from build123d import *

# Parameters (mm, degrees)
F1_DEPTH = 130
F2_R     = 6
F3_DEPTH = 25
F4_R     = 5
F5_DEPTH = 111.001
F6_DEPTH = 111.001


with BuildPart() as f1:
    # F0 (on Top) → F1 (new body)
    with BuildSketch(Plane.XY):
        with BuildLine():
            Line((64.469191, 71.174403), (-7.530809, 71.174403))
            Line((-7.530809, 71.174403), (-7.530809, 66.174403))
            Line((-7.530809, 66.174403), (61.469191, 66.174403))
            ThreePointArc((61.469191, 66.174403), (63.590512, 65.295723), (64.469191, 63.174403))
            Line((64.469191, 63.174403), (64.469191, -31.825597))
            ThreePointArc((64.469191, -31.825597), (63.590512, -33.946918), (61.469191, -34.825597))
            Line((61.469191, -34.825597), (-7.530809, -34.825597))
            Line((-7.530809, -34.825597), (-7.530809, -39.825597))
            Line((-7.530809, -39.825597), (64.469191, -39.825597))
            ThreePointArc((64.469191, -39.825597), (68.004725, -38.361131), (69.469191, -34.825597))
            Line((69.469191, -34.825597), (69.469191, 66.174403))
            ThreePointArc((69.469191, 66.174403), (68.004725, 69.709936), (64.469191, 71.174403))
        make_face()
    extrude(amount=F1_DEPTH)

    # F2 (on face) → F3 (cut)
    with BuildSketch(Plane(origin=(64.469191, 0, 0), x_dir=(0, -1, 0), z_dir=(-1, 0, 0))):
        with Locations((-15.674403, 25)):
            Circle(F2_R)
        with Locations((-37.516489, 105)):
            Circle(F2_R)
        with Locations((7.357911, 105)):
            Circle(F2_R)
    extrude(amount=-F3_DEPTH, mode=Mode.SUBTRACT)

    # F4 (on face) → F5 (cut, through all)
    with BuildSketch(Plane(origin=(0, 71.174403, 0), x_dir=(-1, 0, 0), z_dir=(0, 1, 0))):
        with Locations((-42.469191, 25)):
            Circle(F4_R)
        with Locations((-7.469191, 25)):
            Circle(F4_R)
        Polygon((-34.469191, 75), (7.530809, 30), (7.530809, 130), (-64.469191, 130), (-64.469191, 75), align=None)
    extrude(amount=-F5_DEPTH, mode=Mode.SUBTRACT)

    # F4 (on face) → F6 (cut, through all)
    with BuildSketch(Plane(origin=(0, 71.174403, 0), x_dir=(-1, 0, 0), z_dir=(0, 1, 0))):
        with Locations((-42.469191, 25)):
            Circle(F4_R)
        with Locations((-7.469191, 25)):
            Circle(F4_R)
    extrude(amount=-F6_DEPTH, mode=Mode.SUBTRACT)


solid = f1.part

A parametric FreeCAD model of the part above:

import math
import FreeCAD as App
import Part
import Sketcher
from FreeCAD import Vector
Q = App.Units.Quantity

doc = App.newDocument("Part")
body = doc.addObject("PartDesign::Body", "Body")

# Sketch on XY plane
sketch1 = doc.addObject("Sketcher::SketchObject", "Sketch")
body.addObject(sketch1)
sketch1.AttachmentSupport = (doc.XY_Plane, [""])
sketch1.MapMode = "FlatFace"
sketch1.addGeometry([
    Part.LineSegment(Vector(64.5, 71.2, 0), Vector(-7.5, 71.2, 0)),  # 0
    Part.LineSegment(Vector(-7.5, 71.2, 0), Vector(-7.5, 66.2, 0)),  # 1
    Part.LineSegment(Vector(-7.5, 66.2, 0), Vector(61.5, 66.2, 0)),  # 2
    Part.ArcOfCircle(Part.Circle(Vector(61.5, 63.2, 0), Vector(0, 0, 1), 3), math.radians(0), math.radians(90)),  # 3
    Part.LineSegment(Vector(64.5, 63.2, 0), Vector(64.5, -31.8, 0)),  # 4
    Part.ArcOfCircle(Part.Circle(Vector(61.5, -31.8, 0), Vector(0, 0, 1), 3), math.radians(-90), math.radians(0)),  # 5
    Part.LineSegment(Vector(61.5, -34.8, 0), Vector(-7.5, -34.8, 0)),  # 6
    Part.LineSegment(Vector(-7.5, -34.8, 0), Vector(-7.5, -39.8, 0)),  # 7
    Part.LineSegment(Vector(-7.5, -39.8, 0), Vector(64.5, -39.8, 0)),  # 8
    Part.ArcOfCircle(Part.Circle(Vector(64.5, -34.8, 0), Vector(0, 0, 1), 5), math.radians(-90), math.radians(0)),  # 9
    Part.LineSegment(Vector(69.5, -34.8, 0), Vector(69.5, 66.2, 0)),  # 10
    Part.ArcOfCircle(Part.Circle(Vector(64.5, 66.2, 0), Vector(0, 0, 1), 5), math.radians(0), math.radians(90)),  # 11
], False)
sketch1.addConstraint([
    Sketcher.Constraint("Coincident", 0, 2, 1, 1),
    Sketcher.Constraint("Coincident", 1, 2, 2, 1),
    Sketcher.Constraint("Tangent", 2, 2, 3, 2),
    Sketcher.Constraint("Tangent", 3, 1, 4, 1),
    Sketcher.Constraint("Tangent", 4, 2, 5, 2),
    Sketcher.Constraint("Tangent", 5, 1, 6, 1),
    Sketcher.Constraint("Coincident", 6, 2, 7, 1),
    Sketcher.Constraint("Coincident", 7, 2, 8, 1),
    Sketcher.Constraint("Tangent", 8, 2, 9, 1),
    Sketcher.Constraint("Tangent", 9, 2, 10, 1),
    Sketcher.Constraint("Tangent", 10, 2, 11, 1),
    Sketcher.Constraint("Tangent", 11, 2, 0, 1),
    Sketcher.Constraint("Horizontal", 0),
    Sketcher.Constraint("Vertical", 1),
    Sketcher.Constraint("Horizontal", 2),
    Sketcher.Constraint("Vertical", 4),
    Sketcher.Constraint("Horizontal", 6),
    Sketcher.Constraint("Vertical", 7),
    Sketcher.Constraint("Horizontal", 8),
    Sketcher.Constraint("Vertical", 10),
    Sketcher.Constraint("Equal", 3, 5),
    Sketcher.Constraint("Equal", 9, 11),
    Sketcher.Constraint("Horizontal", 11, 3, 1, 2),
    Sketcher.Constraint("Horizontal", 9, 3, 5, 1),
    Sketcher.Constraint("Vertical", 11, 3, 3, 1),
    Sketcher.Constraint("Vertical", 1, 2, 6, 2),
    Sketcher.Constraint("Radius", 3, Q("2.999999 mm")),
    Sketcher.Constraint("Radius", 9, Q("5 mm")),
    Sketcher.Constraint("DistanceX", 0, 2, 0, 1, Q("72 mm")),
    Sketcher.Constraint("DistanceY", 4, 2, 4, 1, Q("95 mm")),
    Sketcher.Constraint("DistanceY", 5, 3, -1, 1, Q("31.825599 mm")),
    Sketcher.Constraint("DistanceX", -1, 1, 3, 3, Q("61.469192 mm")),
])
pad1 = doc.addObject("PartDesign::Pad", "Pad")
body.addObject(pad1)
pad1.Profile = sketch1
pad1.Length = 130

# Sketch on YZ plane
sketch2 = doc.addObject("Sketcher::SketchObject", "Sketch001")
body.addObject(sketch2)
sketch2.AttachmentSupport = (doc.YZ_Plane, [""])
sketch2.MapMode = "FlatFace"
sketch2.AttachmentOffset = App.Placement(Vector(0, 0, 64.469191), App.Rotation())
sketch2.addGeometry([
    Part.Circle(Vector(16, 25, 0), Vector(0, 0, 1), 6),
    Part.Circle(Vector(38, 105, 0), Vector(0, 0, 1), 6),
    Part.Circle(Vector(-7, 105, 0), Vector(0, 0, 1), 6),
], False)
sketch2.addConstraint([
    Sketcher.Constraint("Equal", 0, 1),
    Sketcher.Constraint("Equal", 1, 2),
    Sketcher.Constraint("Horizontal", 1, 3, 2, 3),
    Sketcher.Constraint("Diameter", 0, Q("12 mm")),
    Sketcher.Constraint("DistanceY", -1, 1, 0, 3, Q("25 mm")),
    Sketcher.Constraint("DistanceY", -1, 1, 1, 3, Q("105 mm")),
    Sketcher.Constraint("DistanceX", 2, 3, 1, 3, Q("44.8744 mm")),
    Sketcher.Constraint("DistanceX", -1, 1, 1, 3, Q("37.516489 mm")),
    Sketcher.Constraint("DistanceX", -1, 1, 0, 3, Q("15.674403 mm")),
])
pocket1 = doc.addObject("PartDesign::Pocket", "Pocket")
body.addObject(pocket1)
pocket1.Profile = sketch2
pocket1.Length = 25
pocket1.Reversed = True

# Sketch on XZ plane
sketch3 = doc.addObject("Sketcher::SketchObject", "Sketch002")
body.addObject(sketch3)
sketch3.AttachmentSupport = (doc.XZ_Plane, [""])
sketch3.MapMode = "FlatFace"
sketch3.AttachmentOffset = App.Placement(Vector(0, 0, -71.174403), App.Rotation())
sketch3.addGeometry([
    Part.Circle(Vector(42, 25, 0), Vector(0, 0, 1), 5),  # 0
    Part.Circle(Vector(7, 25, 0), Vector(0, 0, 1), 5),  # 1
    Part.LineSegment(Vector(34, 75, 0), Vector(-8, 30, 0)),  # 2
    Part.LineSegment(Vector(-8, 30, 0), Vector(-8, 130, 0)),  # 3
    Part.LineSegment(Vector(-8, 130, 0), Vector(64, 130, 0)),  # 4
    Part.LineSegment(Vector(64, 130, 0), Vector(64, 75, 0)),  # 5
    Part.LineSegment(Vector(64, 75, 0), Vector(34, 75, 0)),  # 6
], False)
sketch3.addConstraint([
    Sketcher.Constraint("Coincident", 2, 2, 3, 1),
    Sketcher.Constraint("Coincident", 3, 2, 4, 1),
    Sketcher.Constraint("Coincident", 4, 2, 5, 1),
    Sketcher.Constraint("Coincident", 5, 2, 6, 1),
    Sketcher.Constraint("Coincident", 6, 2, 2, 1),
    Sketcher.Constraint("Vertical", 3),
    Sketcher.Constraint("Horizontal", 4),
    Sketcher.Constraint("Vertical", 5),
    Sketcher.Constraint("Horizontal", 6),
    Sketcher.Constraint("Equal", 0, 1),
    Sketcher.Constraint("Horizontal", 0, 3, 1, 3),
    Sketcher.Constraint("Diameter", 0, Q("10 mm")),
    Sketcher.Constraint("DistanceX", 4, 1, 4, 2, Q("72 mm")),
    Sketcher.Constraint("DistanceX", 6, 2, 6, 1, Q("30 mm")),
    Sketcher.Constraint("DistanceY", 3, 1, 3, 2, Q("100 mm")),
    Sketcher.Constraint("DistanceY", 5, 2, 5, 1, Q("55 mm")),
    Sketcher.Constraint("DistanceY", -1, 1, 0, 3, Q("25 mm")),
    Sketcher.Constraint("DistanceY", -1, 1, 2, 2, Q("30 mm")),
    Sketcher.Constraint("DistanceX", 1, 3, 0, 3, Q("35 mm")),
    Sketcher.Constraint("DistanceX", 2, 2, 1, 3, Q("15 mm")),
    Sketcher.Constraint("DistanceX", -1, 1, 0, 3, Q("42.469191 mm")),
])
pocket2 = doc.addObject("PartDesign::Pocket", "Pocket001")
body.addObject(pocket2)
pocket2.Profile = sketch3
pocket2.Type = "ThroughAll"
pocket2.Reversed = True

# Sketch on XZ plane
sketch4 = doc.addObject("Sketcher::SketchObject", "Sketch003")
body.addObject(sketch4)
sketch4.AttachmentSupport = (doc.XZ_Plane, [""])
sketch4.MapMode = "FlatFace"
sketch4.AttachmentOffset = App.Placement(Vector(0, 0, -71.174403), App.Rotation())
sketch4.addGeometry([
    Part.Circle(Vector(42, 25, 0), Vector(0, 0, 1), 5),
    Part.Circle(Vector(7, 25, 0), Vector(0, 0, 1), 5),
], False)
sketch4.addConstraint([
    Sketcher.Constraint("Equal", 0, 1),
    Sketcher.Constraint("Horizontal", 0, 3, 1, 3),
    Sketcher.Constraint("Diameter", 0, Q("10 mm")),
    Sketcher.Constraint("DistanceY", -1, 1, 0, 3, Q("25 mm")),
    Sketcher.Constraint("DistanceX", 1, 3, 0, 3, Q("35 mm")),
    Sketcher.Constraint("DistanceX", -1, 1, 0, 3, Q("42.469191 mm")),
])
pocket3 = doc.addObject("PartDesign::Pocket", "Pocket002")
body.addObject(pocket3)
pocket3.Profile = sketch4
pocket3.Type = "ThroughAll"
pocket3.Reversed = True

doc.recompute()
